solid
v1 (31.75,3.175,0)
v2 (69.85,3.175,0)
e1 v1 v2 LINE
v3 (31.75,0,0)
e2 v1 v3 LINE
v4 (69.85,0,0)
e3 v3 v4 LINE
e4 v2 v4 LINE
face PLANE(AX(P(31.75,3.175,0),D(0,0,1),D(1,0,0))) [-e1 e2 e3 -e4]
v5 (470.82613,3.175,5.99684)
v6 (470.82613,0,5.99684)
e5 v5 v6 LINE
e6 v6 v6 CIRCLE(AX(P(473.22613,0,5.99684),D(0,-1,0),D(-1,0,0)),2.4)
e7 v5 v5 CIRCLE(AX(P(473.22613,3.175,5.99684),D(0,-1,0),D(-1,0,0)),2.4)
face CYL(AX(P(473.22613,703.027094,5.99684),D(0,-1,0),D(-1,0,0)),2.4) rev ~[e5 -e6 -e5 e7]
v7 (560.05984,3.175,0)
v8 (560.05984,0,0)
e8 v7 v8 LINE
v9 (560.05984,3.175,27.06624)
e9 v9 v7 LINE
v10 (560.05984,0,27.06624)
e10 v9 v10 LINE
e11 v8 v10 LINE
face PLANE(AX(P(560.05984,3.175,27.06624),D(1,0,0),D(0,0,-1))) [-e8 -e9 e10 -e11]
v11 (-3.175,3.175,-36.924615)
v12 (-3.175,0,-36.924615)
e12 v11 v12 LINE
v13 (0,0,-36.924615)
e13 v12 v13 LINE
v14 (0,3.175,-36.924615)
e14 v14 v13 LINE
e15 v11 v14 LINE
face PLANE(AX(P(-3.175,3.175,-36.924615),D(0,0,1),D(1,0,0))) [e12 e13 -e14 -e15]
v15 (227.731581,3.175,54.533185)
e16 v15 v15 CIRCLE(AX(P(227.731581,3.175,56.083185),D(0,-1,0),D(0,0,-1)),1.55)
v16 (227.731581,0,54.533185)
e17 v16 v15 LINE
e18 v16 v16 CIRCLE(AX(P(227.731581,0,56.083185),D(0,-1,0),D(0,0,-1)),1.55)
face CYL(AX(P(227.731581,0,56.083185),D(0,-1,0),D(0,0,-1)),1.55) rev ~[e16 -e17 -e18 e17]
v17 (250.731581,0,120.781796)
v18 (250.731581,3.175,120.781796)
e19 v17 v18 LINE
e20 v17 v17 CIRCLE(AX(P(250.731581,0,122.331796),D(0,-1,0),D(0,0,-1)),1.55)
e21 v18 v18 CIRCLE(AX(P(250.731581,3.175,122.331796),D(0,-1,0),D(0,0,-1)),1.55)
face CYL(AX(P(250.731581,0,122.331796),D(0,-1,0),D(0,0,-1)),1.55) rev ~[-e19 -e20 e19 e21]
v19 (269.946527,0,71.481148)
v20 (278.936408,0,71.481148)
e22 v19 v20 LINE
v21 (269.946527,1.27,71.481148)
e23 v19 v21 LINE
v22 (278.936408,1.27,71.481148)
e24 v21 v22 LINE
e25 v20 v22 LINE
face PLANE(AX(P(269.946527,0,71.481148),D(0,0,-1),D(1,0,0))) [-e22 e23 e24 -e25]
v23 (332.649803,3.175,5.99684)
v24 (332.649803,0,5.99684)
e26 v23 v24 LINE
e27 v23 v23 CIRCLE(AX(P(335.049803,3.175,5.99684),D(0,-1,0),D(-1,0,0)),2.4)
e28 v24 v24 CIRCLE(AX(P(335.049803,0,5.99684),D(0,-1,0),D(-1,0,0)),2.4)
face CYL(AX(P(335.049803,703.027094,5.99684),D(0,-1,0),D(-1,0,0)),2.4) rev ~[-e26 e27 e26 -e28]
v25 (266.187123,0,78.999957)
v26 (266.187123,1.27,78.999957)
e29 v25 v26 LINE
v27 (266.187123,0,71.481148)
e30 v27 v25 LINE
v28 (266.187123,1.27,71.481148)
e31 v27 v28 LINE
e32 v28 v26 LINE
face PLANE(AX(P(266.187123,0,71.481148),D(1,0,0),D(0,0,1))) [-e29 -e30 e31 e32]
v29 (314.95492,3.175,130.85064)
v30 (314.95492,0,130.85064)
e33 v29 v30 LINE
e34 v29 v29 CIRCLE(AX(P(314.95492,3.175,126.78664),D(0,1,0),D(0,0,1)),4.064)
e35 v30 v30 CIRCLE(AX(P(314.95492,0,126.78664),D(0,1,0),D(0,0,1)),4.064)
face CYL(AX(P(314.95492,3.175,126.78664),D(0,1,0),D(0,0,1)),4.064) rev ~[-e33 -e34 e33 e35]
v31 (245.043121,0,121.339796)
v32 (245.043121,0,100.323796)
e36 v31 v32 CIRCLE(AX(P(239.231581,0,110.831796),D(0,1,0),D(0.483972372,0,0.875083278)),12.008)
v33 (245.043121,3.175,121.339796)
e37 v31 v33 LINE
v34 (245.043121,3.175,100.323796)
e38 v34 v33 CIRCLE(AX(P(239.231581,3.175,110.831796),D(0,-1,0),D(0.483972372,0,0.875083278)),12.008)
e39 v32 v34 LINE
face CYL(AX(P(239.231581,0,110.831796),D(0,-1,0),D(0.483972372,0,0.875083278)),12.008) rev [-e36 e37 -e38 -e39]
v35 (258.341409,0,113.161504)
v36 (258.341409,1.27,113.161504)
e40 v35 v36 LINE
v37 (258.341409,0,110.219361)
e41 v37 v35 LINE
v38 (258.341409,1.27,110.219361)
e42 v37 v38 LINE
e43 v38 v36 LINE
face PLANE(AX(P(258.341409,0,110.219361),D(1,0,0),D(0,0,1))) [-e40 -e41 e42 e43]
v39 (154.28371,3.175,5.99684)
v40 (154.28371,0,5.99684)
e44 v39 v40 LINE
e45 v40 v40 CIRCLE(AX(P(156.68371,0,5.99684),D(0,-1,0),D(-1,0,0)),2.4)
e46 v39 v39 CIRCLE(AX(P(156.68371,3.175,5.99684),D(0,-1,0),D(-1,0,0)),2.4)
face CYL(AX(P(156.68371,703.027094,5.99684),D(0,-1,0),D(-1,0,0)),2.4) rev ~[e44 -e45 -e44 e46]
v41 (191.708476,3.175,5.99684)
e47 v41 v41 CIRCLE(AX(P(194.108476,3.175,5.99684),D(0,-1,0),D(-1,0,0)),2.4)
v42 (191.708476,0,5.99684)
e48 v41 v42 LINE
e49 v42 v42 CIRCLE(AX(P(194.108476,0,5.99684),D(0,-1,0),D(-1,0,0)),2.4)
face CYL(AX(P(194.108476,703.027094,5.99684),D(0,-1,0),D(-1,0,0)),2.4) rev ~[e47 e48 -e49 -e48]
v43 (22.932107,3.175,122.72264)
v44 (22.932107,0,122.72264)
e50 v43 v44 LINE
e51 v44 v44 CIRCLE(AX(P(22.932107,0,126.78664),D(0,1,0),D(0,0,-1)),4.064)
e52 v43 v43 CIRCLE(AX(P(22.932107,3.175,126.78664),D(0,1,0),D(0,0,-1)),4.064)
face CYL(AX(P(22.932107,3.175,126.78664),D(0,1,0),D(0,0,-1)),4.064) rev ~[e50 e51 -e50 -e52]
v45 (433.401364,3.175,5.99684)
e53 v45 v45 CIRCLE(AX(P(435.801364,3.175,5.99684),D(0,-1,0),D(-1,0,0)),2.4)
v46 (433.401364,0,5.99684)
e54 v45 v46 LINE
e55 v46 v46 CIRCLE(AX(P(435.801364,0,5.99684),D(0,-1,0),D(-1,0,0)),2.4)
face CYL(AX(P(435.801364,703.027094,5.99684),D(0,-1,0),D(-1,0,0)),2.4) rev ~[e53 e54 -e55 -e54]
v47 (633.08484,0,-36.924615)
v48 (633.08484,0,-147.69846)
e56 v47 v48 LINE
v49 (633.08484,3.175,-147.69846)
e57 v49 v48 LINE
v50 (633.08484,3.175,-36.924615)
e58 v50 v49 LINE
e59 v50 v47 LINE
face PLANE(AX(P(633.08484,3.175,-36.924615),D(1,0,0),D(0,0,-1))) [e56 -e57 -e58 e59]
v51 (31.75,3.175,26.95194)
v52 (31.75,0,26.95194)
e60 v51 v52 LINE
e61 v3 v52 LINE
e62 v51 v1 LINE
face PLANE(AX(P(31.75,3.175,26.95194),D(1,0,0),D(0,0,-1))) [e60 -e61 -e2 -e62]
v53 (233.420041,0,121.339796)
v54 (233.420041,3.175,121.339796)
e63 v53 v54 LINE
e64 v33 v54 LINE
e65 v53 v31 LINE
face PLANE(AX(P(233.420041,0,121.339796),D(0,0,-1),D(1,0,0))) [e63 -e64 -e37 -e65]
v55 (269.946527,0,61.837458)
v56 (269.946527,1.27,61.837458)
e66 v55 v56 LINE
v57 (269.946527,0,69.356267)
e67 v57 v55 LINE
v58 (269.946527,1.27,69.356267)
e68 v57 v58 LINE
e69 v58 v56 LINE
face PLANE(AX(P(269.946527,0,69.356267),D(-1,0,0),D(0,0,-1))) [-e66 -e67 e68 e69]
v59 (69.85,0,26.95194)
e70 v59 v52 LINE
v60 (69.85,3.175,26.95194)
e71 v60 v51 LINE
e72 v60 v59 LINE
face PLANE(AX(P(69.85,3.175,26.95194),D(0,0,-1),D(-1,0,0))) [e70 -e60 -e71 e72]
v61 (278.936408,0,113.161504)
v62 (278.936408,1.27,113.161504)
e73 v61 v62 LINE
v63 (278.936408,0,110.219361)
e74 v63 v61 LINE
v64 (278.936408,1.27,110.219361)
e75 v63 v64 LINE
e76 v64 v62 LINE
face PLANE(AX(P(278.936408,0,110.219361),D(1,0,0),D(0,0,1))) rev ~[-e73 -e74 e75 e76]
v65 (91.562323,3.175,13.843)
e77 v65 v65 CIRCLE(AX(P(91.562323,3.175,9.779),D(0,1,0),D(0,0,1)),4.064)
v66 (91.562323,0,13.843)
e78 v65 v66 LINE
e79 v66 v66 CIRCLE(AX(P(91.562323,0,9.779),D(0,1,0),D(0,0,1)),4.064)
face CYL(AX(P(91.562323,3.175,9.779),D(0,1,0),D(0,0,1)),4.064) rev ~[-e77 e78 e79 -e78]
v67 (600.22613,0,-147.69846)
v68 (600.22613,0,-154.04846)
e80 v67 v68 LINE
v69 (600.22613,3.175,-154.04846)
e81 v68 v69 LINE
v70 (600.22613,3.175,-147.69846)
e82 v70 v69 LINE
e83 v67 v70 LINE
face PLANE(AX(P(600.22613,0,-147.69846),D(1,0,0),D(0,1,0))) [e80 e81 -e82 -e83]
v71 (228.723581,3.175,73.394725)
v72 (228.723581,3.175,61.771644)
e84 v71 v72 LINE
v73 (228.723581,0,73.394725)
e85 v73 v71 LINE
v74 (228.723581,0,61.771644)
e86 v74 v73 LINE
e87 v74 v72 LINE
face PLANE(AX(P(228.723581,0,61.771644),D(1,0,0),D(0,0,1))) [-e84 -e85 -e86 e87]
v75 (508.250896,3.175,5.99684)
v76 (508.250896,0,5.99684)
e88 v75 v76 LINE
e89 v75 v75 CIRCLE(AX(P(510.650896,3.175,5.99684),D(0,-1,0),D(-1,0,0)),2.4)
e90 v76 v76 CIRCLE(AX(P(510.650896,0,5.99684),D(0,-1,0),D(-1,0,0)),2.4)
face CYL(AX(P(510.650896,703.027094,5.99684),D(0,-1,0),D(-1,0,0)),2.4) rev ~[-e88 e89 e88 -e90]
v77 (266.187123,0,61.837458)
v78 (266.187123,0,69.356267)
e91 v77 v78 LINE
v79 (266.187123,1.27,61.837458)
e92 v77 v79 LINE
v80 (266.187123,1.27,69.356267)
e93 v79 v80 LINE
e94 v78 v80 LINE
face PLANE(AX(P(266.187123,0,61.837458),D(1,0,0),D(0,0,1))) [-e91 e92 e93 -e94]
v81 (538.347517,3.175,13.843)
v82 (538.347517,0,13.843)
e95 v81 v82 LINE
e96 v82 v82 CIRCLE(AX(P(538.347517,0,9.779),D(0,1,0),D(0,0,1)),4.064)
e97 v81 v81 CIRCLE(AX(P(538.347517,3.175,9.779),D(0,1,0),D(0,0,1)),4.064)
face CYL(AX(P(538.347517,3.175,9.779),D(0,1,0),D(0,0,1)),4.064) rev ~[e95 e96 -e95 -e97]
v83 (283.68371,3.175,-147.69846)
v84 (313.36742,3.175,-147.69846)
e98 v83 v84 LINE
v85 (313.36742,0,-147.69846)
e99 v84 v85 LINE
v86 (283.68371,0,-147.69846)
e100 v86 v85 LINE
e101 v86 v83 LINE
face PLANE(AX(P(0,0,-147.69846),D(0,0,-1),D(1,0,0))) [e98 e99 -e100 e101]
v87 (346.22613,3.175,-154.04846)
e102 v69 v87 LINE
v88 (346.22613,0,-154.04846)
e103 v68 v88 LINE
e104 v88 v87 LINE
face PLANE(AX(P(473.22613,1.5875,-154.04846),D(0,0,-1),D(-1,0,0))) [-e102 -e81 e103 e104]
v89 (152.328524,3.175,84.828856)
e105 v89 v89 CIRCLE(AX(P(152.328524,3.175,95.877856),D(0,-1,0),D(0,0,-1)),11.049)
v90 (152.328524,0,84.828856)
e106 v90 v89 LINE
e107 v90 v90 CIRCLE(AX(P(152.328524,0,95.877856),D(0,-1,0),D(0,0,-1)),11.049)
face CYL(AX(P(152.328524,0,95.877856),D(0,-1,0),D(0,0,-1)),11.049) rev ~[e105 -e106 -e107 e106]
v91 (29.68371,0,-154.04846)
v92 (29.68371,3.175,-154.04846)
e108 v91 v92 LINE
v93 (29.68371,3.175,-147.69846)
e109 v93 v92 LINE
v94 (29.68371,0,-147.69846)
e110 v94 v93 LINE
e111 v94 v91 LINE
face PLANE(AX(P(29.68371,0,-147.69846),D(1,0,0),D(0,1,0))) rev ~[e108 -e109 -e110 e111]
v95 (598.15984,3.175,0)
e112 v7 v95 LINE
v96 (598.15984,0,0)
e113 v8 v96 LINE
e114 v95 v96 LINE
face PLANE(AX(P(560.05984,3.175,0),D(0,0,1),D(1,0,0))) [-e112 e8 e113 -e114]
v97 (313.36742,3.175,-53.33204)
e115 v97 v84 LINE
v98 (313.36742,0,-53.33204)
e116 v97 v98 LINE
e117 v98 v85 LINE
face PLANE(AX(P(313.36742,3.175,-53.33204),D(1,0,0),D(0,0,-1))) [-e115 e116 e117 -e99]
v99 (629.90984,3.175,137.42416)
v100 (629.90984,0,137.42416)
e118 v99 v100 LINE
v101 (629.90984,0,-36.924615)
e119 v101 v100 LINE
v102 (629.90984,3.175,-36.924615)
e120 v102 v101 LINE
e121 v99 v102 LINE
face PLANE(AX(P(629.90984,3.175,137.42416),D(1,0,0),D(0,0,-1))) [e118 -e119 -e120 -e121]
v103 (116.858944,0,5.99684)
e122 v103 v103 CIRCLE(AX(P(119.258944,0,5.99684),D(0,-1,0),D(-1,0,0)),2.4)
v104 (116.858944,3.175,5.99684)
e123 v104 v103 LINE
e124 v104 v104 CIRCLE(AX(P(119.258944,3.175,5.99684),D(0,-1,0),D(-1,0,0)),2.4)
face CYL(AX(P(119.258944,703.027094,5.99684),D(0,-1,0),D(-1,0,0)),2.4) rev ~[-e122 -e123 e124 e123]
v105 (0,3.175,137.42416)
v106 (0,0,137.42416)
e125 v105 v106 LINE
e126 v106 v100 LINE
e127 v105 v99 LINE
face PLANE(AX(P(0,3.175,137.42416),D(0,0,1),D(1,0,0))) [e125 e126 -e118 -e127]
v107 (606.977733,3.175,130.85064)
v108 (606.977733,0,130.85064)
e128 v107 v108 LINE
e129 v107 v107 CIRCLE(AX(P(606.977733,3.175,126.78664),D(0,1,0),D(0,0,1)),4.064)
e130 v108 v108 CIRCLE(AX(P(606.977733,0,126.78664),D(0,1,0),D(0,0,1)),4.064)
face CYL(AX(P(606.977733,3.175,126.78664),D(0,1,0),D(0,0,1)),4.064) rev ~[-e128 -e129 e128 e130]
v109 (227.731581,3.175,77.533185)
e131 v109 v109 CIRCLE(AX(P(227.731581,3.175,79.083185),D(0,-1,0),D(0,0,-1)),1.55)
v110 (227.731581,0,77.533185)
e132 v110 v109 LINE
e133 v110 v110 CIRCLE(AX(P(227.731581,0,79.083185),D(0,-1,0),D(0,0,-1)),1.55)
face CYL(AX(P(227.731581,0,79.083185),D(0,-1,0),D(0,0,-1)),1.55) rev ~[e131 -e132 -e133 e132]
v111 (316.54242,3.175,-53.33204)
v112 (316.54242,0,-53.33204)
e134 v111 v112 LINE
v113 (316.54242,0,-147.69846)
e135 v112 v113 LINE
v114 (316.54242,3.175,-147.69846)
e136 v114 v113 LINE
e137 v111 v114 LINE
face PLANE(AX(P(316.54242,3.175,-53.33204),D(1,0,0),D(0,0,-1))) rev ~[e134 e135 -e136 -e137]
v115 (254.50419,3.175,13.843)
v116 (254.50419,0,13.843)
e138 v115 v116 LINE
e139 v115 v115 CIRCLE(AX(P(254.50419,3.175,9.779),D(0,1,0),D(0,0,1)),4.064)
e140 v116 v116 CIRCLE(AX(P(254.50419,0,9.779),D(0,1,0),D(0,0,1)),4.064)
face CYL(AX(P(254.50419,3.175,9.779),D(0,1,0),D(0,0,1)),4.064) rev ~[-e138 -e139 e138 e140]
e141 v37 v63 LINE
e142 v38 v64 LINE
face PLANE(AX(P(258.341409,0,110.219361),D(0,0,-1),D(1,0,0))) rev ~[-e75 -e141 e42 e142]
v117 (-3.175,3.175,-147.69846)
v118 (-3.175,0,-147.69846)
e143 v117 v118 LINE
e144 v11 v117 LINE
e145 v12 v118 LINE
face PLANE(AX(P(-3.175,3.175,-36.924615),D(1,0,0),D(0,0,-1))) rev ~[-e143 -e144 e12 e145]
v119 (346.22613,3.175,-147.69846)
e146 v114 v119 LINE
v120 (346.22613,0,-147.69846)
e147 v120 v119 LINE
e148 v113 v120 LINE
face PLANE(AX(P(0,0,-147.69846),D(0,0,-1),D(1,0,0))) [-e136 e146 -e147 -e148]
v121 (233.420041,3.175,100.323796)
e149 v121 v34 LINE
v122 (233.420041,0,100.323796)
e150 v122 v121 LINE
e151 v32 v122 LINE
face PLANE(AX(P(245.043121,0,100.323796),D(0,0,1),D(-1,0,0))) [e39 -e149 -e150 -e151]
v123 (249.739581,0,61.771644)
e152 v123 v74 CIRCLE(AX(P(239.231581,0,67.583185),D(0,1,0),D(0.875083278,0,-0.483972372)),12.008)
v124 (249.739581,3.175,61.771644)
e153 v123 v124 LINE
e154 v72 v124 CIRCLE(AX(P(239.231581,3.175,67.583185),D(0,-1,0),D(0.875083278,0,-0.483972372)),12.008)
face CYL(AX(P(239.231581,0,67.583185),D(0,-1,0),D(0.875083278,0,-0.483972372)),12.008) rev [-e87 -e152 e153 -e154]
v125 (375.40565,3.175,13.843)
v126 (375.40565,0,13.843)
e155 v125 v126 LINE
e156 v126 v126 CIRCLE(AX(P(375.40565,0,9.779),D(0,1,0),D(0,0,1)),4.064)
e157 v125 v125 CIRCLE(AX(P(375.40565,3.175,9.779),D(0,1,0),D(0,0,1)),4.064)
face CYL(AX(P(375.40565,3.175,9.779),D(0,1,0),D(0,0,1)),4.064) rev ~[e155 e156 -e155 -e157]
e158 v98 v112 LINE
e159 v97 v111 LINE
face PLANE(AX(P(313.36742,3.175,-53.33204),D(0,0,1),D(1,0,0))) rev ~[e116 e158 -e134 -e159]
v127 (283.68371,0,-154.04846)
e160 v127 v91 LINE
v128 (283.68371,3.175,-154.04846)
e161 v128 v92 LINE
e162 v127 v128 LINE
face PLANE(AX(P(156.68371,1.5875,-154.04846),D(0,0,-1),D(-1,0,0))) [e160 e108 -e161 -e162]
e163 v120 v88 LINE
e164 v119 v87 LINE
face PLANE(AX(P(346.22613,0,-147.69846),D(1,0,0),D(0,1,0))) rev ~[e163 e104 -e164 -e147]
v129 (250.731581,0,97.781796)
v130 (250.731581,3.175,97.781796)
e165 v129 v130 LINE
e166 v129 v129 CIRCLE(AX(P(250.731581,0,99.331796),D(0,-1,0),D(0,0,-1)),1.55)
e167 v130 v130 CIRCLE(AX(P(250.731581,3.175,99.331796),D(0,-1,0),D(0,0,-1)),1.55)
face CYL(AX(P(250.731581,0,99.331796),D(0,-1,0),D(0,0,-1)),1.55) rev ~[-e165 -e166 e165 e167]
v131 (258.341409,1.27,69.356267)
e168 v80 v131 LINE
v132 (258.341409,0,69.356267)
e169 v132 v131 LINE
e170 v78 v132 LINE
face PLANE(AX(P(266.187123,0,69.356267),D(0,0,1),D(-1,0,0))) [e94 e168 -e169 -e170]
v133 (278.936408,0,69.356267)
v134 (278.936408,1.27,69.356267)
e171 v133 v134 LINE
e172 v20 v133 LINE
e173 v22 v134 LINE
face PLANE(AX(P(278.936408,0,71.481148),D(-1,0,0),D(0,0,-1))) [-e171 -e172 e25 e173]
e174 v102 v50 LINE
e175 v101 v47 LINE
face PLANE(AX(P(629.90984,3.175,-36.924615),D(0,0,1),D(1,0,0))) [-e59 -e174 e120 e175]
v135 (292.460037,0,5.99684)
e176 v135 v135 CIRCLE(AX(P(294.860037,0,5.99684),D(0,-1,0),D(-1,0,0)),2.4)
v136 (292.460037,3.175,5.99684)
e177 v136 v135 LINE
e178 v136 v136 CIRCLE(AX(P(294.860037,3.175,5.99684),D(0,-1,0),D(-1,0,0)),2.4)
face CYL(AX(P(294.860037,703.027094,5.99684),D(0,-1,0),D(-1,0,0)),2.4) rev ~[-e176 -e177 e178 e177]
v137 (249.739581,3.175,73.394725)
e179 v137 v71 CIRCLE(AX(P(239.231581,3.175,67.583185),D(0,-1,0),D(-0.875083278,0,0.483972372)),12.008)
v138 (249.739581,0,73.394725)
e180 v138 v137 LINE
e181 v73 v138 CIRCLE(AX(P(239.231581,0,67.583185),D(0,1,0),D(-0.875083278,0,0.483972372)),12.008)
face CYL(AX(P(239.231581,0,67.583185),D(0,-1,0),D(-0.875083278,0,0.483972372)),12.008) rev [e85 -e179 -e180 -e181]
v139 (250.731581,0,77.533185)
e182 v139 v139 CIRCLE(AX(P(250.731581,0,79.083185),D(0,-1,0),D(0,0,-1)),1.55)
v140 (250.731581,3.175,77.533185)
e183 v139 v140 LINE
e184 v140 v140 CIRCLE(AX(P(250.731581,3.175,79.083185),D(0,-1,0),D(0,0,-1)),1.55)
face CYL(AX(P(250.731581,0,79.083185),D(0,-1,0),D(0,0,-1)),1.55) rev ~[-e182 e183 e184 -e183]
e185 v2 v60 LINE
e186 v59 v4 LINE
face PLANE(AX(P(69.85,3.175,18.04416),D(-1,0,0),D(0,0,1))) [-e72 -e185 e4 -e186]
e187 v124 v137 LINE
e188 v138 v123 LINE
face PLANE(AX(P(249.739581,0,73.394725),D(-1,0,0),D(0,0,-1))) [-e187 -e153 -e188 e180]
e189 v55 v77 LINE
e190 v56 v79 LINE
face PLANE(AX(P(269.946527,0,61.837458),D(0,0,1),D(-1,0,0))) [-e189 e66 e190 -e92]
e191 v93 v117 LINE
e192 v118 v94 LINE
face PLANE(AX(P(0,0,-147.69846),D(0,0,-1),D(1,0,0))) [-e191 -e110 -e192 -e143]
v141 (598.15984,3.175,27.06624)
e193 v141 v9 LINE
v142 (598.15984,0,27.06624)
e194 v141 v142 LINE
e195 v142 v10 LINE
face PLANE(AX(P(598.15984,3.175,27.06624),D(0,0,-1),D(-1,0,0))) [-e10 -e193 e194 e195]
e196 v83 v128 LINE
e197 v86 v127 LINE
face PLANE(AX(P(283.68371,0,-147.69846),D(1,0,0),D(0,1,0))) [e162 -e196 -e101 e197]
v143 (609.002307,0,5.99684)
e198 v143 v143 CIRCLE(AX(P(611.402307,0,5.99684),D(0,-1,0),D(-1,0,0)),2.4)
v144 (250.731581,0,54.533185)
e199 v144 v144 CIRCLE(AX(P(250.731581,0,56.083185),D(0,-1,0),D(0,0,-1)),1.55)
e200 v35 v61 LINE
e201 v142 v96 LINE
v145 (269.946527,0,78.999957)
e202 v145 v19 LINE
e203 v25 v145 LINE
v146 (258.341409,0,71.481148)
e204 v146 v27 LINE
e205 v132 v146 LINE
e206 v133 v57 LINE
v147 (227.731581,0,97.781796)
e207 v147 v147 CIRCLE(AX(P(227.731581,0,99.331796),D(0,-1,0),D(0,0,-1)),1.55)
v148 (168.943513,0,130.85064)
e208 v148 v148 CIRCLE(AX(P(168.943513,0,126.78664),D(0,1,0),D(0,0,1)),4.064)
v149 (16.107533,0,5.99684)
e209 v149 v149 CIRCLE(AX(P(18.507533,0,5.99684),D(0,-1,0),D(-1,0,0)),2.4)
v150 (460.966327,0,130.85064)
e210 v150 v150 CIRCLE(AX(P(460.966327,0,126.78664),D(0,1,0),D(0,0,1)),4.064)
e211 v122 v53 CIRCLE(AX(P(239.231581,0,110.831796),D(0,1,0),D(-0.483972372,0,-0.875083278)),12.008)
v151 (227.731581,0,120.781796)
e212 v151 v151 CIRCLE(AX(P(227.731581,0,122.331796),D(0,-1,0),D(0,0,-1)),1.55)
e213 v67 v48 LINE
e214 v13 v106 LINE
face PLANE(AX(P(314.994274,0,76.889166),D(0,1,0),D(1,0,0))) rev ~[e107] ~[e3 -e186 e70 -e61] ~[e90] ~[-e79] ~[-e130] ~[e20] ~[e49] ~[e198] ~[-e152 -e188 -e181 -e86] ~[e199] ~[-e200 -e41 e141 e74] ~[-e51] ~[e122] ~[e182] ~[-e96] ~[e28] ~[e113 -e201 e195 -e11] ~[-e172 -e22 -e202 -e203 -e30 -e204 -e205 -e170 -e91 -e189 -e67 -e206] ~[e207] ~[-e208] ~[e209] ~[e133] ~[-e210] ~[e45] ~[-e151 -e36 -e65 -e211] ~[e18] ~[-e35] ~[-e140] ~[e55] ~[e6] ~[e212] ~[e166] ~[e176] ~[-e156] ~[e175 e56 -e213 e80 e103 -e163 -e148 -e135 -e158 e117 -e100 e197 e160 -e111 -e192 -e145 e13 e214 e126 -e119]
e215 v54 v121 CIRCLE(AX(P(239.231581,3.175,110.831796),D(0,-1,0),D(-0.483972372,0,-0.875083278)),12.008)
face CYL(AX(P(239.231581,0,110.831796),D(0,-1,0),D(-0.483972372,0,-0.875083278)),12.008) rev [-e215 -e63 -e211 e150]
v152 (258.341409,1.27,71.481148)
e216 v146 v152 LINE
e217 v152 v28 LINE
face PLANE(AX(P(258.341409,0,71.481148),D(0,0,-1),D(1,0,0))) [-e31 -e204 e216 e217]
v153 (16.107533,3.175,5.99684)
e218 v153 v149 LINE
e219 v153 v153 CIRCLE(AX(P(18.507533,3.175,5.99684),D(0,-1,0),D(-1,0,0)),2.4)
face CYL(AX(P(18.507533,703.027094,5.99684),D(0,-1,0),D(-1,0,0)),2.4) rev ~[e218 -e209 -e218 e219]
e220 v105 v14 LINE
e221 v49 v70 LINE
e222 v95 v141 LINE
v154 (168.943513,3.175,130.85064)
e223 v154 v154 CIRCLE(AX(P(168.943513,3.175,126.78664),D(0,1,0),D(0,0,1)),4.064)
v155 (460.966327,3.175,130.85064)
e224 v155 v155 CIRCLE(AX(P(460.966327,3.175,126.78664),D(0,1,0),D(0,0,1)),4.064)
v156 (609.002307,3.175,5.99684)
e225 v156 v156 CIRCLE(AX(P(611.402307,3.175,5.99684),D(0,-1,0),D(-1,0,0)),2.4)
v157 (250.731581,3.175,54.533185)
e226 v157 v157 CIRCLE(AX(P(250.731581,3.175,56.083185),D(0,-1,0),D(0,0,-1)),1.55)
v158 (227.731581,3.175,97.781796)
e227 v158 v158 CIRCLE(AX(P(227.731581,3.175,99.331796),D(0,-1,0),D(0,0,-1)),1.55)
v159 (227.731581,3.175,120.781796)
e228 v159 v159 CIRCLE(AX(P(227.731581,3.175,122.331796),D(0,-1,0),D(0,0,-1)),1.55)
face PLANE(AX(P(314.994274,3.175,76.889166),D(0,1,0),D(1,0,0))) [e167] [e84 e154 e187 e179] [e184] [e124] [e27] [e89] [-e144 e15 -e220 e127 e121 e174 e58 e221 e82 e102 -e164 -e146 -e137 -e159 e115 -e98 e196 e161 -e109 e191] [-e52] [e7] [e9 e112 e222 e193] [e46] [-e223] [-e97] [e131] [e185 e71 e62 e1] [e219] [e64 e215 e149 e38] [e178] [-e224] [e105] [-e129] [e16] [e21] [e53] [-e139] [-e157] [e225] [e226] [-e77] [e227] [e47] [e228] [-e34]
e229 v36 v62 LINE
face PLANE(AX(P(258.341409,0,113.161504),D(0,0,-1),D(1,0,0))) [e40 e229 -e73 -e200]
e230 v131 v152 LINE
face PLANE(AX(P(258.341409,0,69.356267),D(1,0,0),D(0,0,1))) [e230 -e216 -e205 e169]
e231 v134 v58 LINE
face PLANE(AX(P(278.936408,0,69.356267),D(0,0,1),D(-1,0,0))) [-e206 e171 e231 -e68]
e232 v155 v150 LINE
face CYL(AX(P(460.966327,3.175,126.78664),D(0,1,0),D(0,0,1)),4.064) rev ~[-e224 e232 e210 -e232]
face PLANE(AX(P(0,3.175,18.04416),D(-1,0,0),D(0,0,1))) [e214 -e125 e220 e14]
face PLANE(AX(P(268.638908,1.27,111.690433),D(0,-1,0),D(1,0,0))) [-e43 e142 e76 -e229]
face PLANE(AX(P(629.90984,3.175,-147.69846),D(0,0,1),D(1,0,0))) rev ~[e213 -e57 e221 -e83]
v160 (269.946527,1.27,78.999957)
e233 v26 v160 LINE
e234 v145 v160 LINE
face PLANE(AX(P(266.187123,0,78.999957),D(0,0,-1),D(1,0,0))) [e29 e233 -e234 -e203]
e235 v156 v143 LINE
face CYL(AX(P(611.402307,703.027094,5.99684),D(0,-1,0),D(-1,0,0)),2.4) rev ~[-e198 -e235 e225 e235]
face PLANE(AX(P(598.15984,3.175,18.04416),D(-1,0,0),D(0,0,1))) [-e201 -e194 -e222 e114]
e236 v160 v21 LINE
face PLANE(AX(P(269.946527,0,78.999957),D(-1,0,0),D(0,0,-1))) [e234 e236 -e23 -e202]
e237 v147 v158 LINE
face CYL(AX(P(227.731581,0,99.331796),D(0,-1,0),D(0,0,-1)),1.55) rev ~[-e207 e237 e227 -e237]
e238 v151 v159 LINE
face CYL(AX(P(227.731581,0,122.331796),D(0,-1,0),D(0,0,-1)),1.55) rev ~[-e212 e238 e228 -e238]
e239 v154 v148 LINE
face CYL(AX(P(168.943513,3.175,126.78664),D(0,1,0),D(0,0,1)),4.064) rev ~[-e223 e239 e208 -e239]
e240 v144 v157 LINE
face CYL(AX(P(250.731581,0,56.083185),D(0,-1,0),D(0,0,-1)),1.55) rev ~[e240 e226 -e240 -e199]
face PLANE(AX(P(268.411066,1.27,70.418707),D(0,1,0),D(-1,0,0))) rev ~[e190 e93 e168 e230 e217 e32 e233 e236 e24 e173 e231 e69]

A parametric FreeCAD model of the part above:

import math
import FreeCAD as App
import Part
import Sketcher
from FreeCAD import Vector
Q = App.Units.Quantity


def add_polygon(sketch, points):
    """Adds a closed chain of lines whose ends are joined by coincident constraints."""
    first, n = sketch.GeometryCount, len(points)
    for a, b in zip(points, points[1:] + points[:1]):
        sketch.addGeometry(Part.LineSegment(App.Vector(*a, 0), App.Vector(*b, 0)), False)
    for i in range(n):
        sketch.addConstraint(Sketcher.Constraint("Coincident", first + i, 2, first + (i + 1) % n, 1))

doc = App.newDocument("Part")
body = doc.addObject("PartDesign::Body", "Body")

sketch1 = doc.addObject("Sketcher::SketchObject", "Sketch")
body.addObject(sketch1)
sketch1.AttachmentSupport = (doc.XZ_Plane, [""])
sketch1.MapMode = "FlatFace"
add_polygon(sketch1, [(0, -148), (0, 0), (630, 0), (630, -148)])
sketch1.addConstraint([
    Sketcher.Constraint("Vertical", 0),
    Sketcher.Constraint("Horizontal", 1),
    Sketcher.Constraint("Vertical", 2),
    Sketcher.Constraint("Horizontal", 3),
    Sketcher.Constraint("Coincident", 0, 2, -1, 1),
    Sketcher.Constraint("DistanceX", 1, 1, 1, 2, Q("24.7996 in")),
    Sketcher.Constraint("DistanceY", 0, 1, 0, 2, Q("5.8149 in")),
])
pad1 = doc.addObject("PartDesign::Pad", "Pad")
body.addObject(pad1)
pad1.Profile = sketch1
pad1.Length = Q("0.125 in")
pad1.Reversed = True

sketch2 = doc.addObject("Sketcher::SketchObject", "Sketch001")
body.addObject(sketch2)
sketch2.AttachmentSupport = (doc.XY_Plane, [""])
sketch2.MapMode = "FlatFace"
sketch2.AttachmentOffset = App.Placement(Vector(0, 0, -5.8149 * 25.4), App.Rotation())
add_polygon(sketch2, [(600.2, 3.2), (600.2, 0), (346.2, 0), (346.2, 3.2)])
add_polygon(sketch2, [(283.7, 3.2), (283.7, 0), (29.7, 0), (29.7, 3.2)])
sketch2.addConstraint([
    Sketcher.Constraint("Vertical", 0),
    Sketcher.Constraint("Horizontal", 1),
    Sketcher.Constraint("Vertical", 2),
    Sketcher.Constraint("Horizontal", 3),
    Sketcher.Constraint("Vertical", 4),
    Sketcher.Constraint("Horizontal", 5),
    Sketcher.Constraint("Vertical", 6),
    Sketcher.Constraint("Horizontal", 7),
    Sketcher.Constraint("PointOnObject", 0, 2, -1),
    Sketcher.Constraint("PointOnObject", 4, 2, -1),
    Sketcher.Constraint("Horizontal", 3, 2, 6, 2),
    Sketcher.Constraint("Equal", 3, 5),
    Sketcher.Constraint("DistanceX", 1, 2, 1, 1, Q("10 in")),
    Sketcher.Constraint("DistanceY", 0, 2, 0, 1, Q("0.125 in")),
    Sketcher.Constraint("DistanceX", 4, 2, 1, 2, Q("2.4623 in")),
    Sketcher.Constraint("DistanceX", -1, 1, 0, 2, 600.22613),
])
pad2 = doc.addObject("PartDesign::Pad", "Pad001")
body.addObject(pad2)
pad2.Profile = sketch2
pad2.Length = Q("0.25 in")
pad2.Reversed = True

sketch3 = doc.addObject("Sketcher::SketchObject", "Sketch002")
body.addObject(sketch3)
sketch3.AttachmentSupport = (doc.XZ_Plane, [""])
sketch3.MapMode = "FlatFace"
sketch3.AttachmentOffset = App.Placement(Vector(0, 0, -0.125 * 25.4), App.Rotation())
add_polygon(sketch3, [(313.4, -242.1), (313.4, -53.3), (316.5, -53.3), (316.5, -242.1)])
sketch3.addConstraint([
    Sketcher.Constraint("Vertical", 0),
    Sketcher.Constraint("Horizontal", 1),
    Sketcher.Constraint("Vertical", 2),
    Sketcher.Constraint("Horizontal", 3),
    Sketcher.Constraint("DistanceX", 1, 1, 1, 2, Q("0.125 in")),
    Sketcher.Constraint("DistanceX", -1, 1, 0, 2, Q("12.3373 in")),
    Sketcher.Constraint("DistanceY", 0, 1, 0, 2, 188.73284),
    Sketcher.Constraint("DistanceY", 0, 2, -1, 1, 53.33204),
])
pocket1 = doc.addObject("PartDesign::Pocket", "Pocket")
body.addObject(pocket1)
pocket1.Profile = sketch3
pocket1.Length = Q("0.125 in")
pocket1.Reversed = True

sketch4 = doc.addObject("Sketcher::SketchObject", "Sketch003")
body.addObject(sketch4)
sketch4.AttachmentSupport = (doc.XZ_Plane, [""])
sketch4.MapMode = "FlatFace"
sketch4.AttachmentOffset = App.Placement(Vector(0, 0, -0.125 * 25.4), App.Rotation())
add_polygon(sketch4, [(629.9, -147.7), (629.9, -36.9), (633.1, -36.9), (633.1, -147.7)])
add_polygon(sketch4, [(-3.2, -147.7), (-3.2, -36.9), (0, -36.9), (0, -147.7)])
sketch4.addConstraint([
    Sketcher.Constraint("Vertical", 0),
    Sketcher.Constraint("Horizontal", 1),
    Sketcher.Constraint("Vertical", 2),
    Sketcher.Constraint("Horizontal", 3),
    Sketcher.Constraint("Vertical", 4),
    Sketcher.Constraint("Horizontal", 5),
    Sketcher.Constraint("Vertical", 6),
    Sketcher.Constraint("Horizontal", 7),
    Sketcher.Constraint("PointOnObject", 5, 2, -2),
    Sketcher.Constraint("Horizontal", 1, 2, 4, 2),
    Sketcher.Constraint("Horizontal", 3, 2, 6, 2),
    Sketcher.Constraint("Equal", 3, 5),
    Sketcher.Constraint("DistanceX", 1, 1, 1, 2, Q("0.125 in")),
    Sketcher.Constraint("DistanceX", -1, 1, 0, 2, Q("24.7996 in")),
    Sketcher.Constraint("DistanceY", 2, 2, -1, 1, Q("5.8149 in")),
    Sketcher.Constraint("DistanceY", 0, 1, 0, 2, 110.773845),
])
pad3 = doc.addObject("PartDesign::Pad", "Pad002")
body.addObject(pad3)
pad3.Profile = sketch4
pad3.Length = Q("0.125 in")

sketch5 = doc.addObject("Sketcher::SketchObject", "Sketch004")
body.addObject(sketch5)
sketch5.AttachmentSupport = (doc.XZ_Plane, [""])
sketch5.MapMode = "FlatFace"
sketch5.AttachmentOffset = App.Placement(Vector(0, 0, -0.125 * 25.4), App.Rotation())
add_polygon(sketch5, [(0, 0), (0, 18), (630, 18), (630, 0)])
sketch5.addConstraint([
    Sketcher.Constraint("Vertical", 0),
    Sketcher.Constraint("Horizontal", 1),
    Sketcher.Constraint("Vertical", 2),
    Sketcher.Constraint("Horizontal", 3),
    Sketcher.Constraint("Coincident", 3, 2, -1, 1),
    Sketcher.Constraint("DistanceX", 1, 1, 1, 2, Q("24.7996 in")),
    Sketcher.Constraint("DistanceY", 0, 1, 0, 2, Q("0.7104 in")),
])
pad4 = doc.addObject("PartDesign::Pad", "Pad003")
body.addObject(pad4)
pad4.Profile = sketch5
pad4.Length = Q("0.125 in")

sketch6 = doc.addObject("Sketcher::SketchObject", "Sketch005")
body.addObject(sketch6)
sketch6.AttachmentSupport = (doc.XZ_Plane, [""])
sketch6.MapMode = "FlatFace"
sketch6.AttachmentOffset = App.Placement(Vector(0, 0, -0.125 * 25.4), App.Rotation())
add_polygon(sketch6, [(560, 0), (560, 36), (598, 36), (598, 0)])
add_polygon(sketch6, [(32, 0), (32, 36), (70, 36), (70, 0)])
sketch6.addConstraint([
    Sketcher.Constraint("Vertical", 0),
    Sketcher.Constraint("Horizontal", 1),
    Sketcher.Constraint("Vertical", 2),
    Sketcher.Constraint("Horizontal", 3),
    Sketcher.Constraint("Vertical", 4),
    Sketcher.Constraint("Horizontal", 5),
    Sketcher.Constraint("Vertical", 6),
    Sketcher.Constraint("Horizontal", 7),
    Sketcher.Constraint("PointOnObject", 2, 2, -1),
    Sketcher.Constraint("PointOnObject", 6, 2, -1),
    Sketcher.Constraint("Horizontal", 1, 2, 4, 2),
    Sketcher.Constraint("Equal", 3, 5),
    Sketcher.Constraint("DistanceX", 1, 1, 1, 2, Q("1.5 in")),
    Sketcher.Constraint("DistanceX", -1, 1, 4, 2, Q("1.25 in")),
    Sketcher.Constraint("DistanceY", 0, 1, 0, 2, Q("1.4208 in")),
    Sketcher.Constraint("DistanceX", -1, 1, 0, 2, Q("22.0496 in")),
])
pocket2 = doc.addObject("PartDesign::Pocket", "Pocket001")
body.addObject(pocket2)
pocket2.Profile = sketch6
pocket2.Type = "ThroughAll"
pocket2.Reversed = True

sketch7 = doc.addObject("Sketcher::SketchObject", "Sketch006")
body.addObject(sketch7)
sketch7.AttachmentSupport = (doc.XZ_Plane, [""])
sketch7.MapMode = "FlatFace"
sketch7.AttachmentOffset = App.Placement(Vector(0, 0, -0.125 * 25.4), App.Rotation())
add_polygon(sketch7, [(0, 18), (0, 137), (630, 137), (630, 18), (598, 18), (598, 27), (560, 27), (560, 18), (70, 18), (70, 27), (32, 27), (32, 18)])
sketch7.addConstraint([
    Sketcher.Constraint("Vertical", 0),
    Sketcher.Constraint("Horizontal", 1),
    Sketcher.Constraint("Vertical", 2),
    Sketcher.Constraint("Horizontal", 3),
    Sketcher.Constraint("Vertical", 4),
    Sketcher.Constraint("Horizontal", 5),
    Sketcher.Constraint("Vertical", 6),
    Sketcher.Constraint("Horizontal", 7),
    Sketcher.Constraint("Vertical", 8),
    Sketcher.Constraint("Horizontal", 9),
    Sketcher.Constraint("Vertical", 10),
    Sketcher.Constraint("Horizontal", 11),
    Sketcher.Constraint("PointOnObject", 0, 2, -2),
    Sketcher.Constraint("Horizontal", 3, 2, 6, 2),
    Sketcher.Constraint("Horizontal", 7, 2, 10, 2),
    Sketcher.Constraint("Equal", 5, 9),
    Sketcher.Constraint("Equal", 3, 11),
    Sketcher.Constraint("DistanceX", 5, 2, 5, 1, Q("1.5 in")),
    Sketcher.Constraint("DistanceY", 0, 1, 0, 2, Q("4.7 in")),
    Sketcher.Constraint("DistanceX", 3, 2, 3, 1, Q("1.25 in")),
    Sketcher.Constraint("DistanceX", 1, 1, 1, 2, Q("24.7996 in")),
    Sketcher.Constraint("DistanceY", 4, 1, 4, 2, Q("0.3552 in")),
    Sketcher.Constraint("DistanceY", 8, 1, 8, 2, Q("0.3507 in")),
    Sketcher.Constraint("DistanceY", -1, 1, 0, 2, Q("5.4104 in")),
])
pad5 = doc.addObject("PartDesign::Pad", "Pad004")
body.addObject(pad5)
pad5.Profile = sketch7
pad5.Length = Q("0.125 in")

sketch8 = doc.addObject("Sketcher::SketchObject", "Sketch007")
body.addObject(sketch8)
sketch8.AttachmentSupport = (doc.XZ_Plane, [""])
sketch8.MapMode = "FlatFace"
sketch8.addGeometry([
    Part.Circle(Vector(227.7, 122.3, 0), Vector(0, 0, 1), 1.6),
    Part.Circle(Vector(250.7, 122.3, 0), Vector(0, 0, 1), 1.6),
    Part.Circle(Vector(227.7, 99.3, 0), Vector(0, 0, 1), 1.6),
    Part.Circle(Vector(250.7, 99.3, 0), Vector(0, 0, 1), 1.6),
    Part.Circle(Vector(152.3, 95.9, 0), Vector(0, 0, 1), 11),
    Part.Circle(Vector(227.7, 79.1, 0), Vector(0, 0, 1), 1.6),
    Part.Circle(Vector(227.7, 56.1, 0), Vector(0, 0, 1), 1.6),
    Part.Circle(Vector(250.7, 56.1, 0), Vector(0, 0, 1), 1.6),
    Part.Circle(Vector(250.7, 79.1, 0), Vector(0, 0, 1), 1.6),
    Part.LineSegment(Vector(233.4, 100.3, 0), Vector(245, 100.3, 0)),
    Part.ArcOfCircle(Part.Circle(Vector(239.2, 110.8, 0), Vector(0, 0, 1), 12), math.radians(-61), math.radians(61)),
    Part.LineSegment(Vector(245, 121.3, 0), Vector(233.4, 121.3, 0)),
    Part.ArcOfCircle(Part.Circle(Vector(239.2, 110.8, 0), Vector(0, 0, 1), 12), math.radians(119), math.radians(241)),
    Part.LineSegment(Vector(249.7, 61.8, 0), Vector(249.7, 73.4, 0)),
    Part.ArcOfCircle(Part.Circle(Vector(239.2, 67.6, 0), Vector(0, 0, 1), 12), math.radians(29), math.radians(151)),
    Part.LineSegment(Vector(228.7, 73.4, 0), Vector(228.7, 61.8, 0)),
    Part.ArcOfCircle(Part.Circle(Vector(239.2, 67.6, 0), Vector(0, 0, 1), 12), math.radians(-151), math.radians(-29)),
], False)
sketch8.addConstraint([
    Sketcher.Constraint("Coincident", 9, 2, 10, 1),
    Sketcher.Constraint("Coincident", 10, 2, 11, 1),
    Sketcher.Constraint("Coincident", 11, 2, 12, 1),
    Sketcher.Constraint("Coincident", 12, 2, 9, 1),
    Sketcher.Constraint("Coincident", 13, 2, 14, 1),
    Sketcher.Constraint("Coincident", 14, 2, 15, 1),
    Sketcher.Constraint("Coincident", 15, 2, 16, 1),
    Sketcher.Constraint("Coincident", 16, 2, 13, 1),
    Sketcher.Constraint("Horizontal", 9),
    Sketcher.Constraint("Horizontal", 11),
    Sketcher.Constraint("Vertical", 13),
    Sketcher.Constraint("Vertical", 15),
    Sketcher.Constraint("Coincident", 12, 3, 10, 3),
    Sketcher.Constraint("Coincident", 16, 3, 14, 3),
    Sketcher.Constraint("Equal", 0, 1),
    Sketcher.Constraint("Equal", 1, 2),
    Sketcher.Constraint("Equal", 2, 3),
    Sketcher.Constraint("Equal", 3, 5),
    Sketcher.Constraint("Equal", 5, 6),
    Sketcher.Constraint("Equal", 6, 7),
    Sketcher.Constraint("Equal", 7, 8),
    Sketcher.Constraint("Equal", 10, 12),
    Sketcher.Constraint("Equal", 12, 14),
    Sketcher.Constraint("Equal", 14, 16),
    Sketcher.Constraint("Horizontal", 0, 3, 1, 3),
    Sketcher.Constraint("Horizontal", 2, 3, 3, 3),
    Sketcher.Constraint("Horizontal", 6, 3, 7, 3),
    Sketcher.Constraint("Horizontal", 5, 3, 8, 3),
    Sketcher.Constraint("Horizontal", 13, 2, 14, 2),
    Sketcher.Constraint("Vertical", 0, 3, 2, 3),
    Sketcher.Constraint("Vertical", 1, 3, 3, 3),
    Sketcher.Constraint("Vertical", 2, 3, 5, 3),
    Sketcher.Constraint("Vertical", 5, 3, 6, 3),
    Sketcher.Constraint("Vertical", 3, 3, 7, 3),
    Sketcher.Constraint("Vertical", 7, 3, 8, 3),
    Sketcher.Constraint("Vertical", 12, 3, 14, 3),
    Sketcher.Constraint("Vertical", 9, 2, 10, 2),
    Sketcher.Constraint("Equal", 11, 13),
    Sketcher.Constraint("Diameter", 4, Q("0.87 in")),
    Sketcher.Constraint("Diameter", 0, 3.1),
    Sketcher.Constraint("Radius", 10, 12.008),
    Sketcher.Constraint("DistanceX", 9, 1, 9, 2, 11.62308),
    Sketcher.Constraint("DistanceX", 0, 3, 1, 3, 23.0),
    Sketcher.Constraint("DistanceY", 2, 3, 0, 3, 23.0),
    Sketcher.Constraint("DistanceY", 6, 3, 5, 3, 23.0),
    Sketcher.Constraint("DistanceX", 0, 3, 10, 3, 11.5),
    Sketcher.Constraint("DistanceY", 10, 3, 0, 3, 11.5),
    Sketcher.Constraint("DistanceY", 6, 3, 14, 3, 11.5),
    Sketcher.Constraint("DistanceX", -1, 1, 0, 3, 227.731581),
    Sketcher.Constraint("DistanceY", 4, 3, 2, 3, 3.45394),
    Sketcher.Constraint("DistanceY", 5, 3, 2, 3, 20.248611),
    Sketcher.Constraint("DistanceY", -1, 1, 0, 3, 122.331796),
    Sketcher.Constraint("DistanceX", -1, 1, 4, 3, 152.328524),
])
pocket3 = doc.addObject("PartDesign::Pocket", "Pocket002")
body.addObject(pocket3)
pocket3.Profile = sketch8
pocket3.Type = "ThroughAll"

sketch9 = doc.addObject("Sketcher::SketchObject", "Sketch008")
body.addObject(sketch9)
sketch9.AttachmentSupport = (doc.XZ_Plane, [""])
sketch9.MapMode = "FlatFace"
add_polygon(sketch9, [(278.9, 71.5), (269.9, 71.5), (269.9, 79), (266.2, 79), (266.2, 71.5), (258.3, 71.5), (258.3, 69.4), (266.2, 69.4), (266.2, 61.8), (269.9, 61.8), (269.9, 69.4), (278.9, 69.4)])
add_polygon(sketch9, [(258.3, 113.2), (258.3, 110.2), (278.9, 110.2), (278.9, 113.2)])
sketch9.addConstraint([
    Sketcher.Constraint("Horizontal", 0),
    Sketcher.Constraint("Vertical", 1),
    Sketcher.Constraint("Horizontal", 2),
    Sketcher.Constraint("Vertical", 3),
    Sketcher.Constraint("Horizontal", 4),
    Sketcher.Constraint("Vertical", 5),
    Sketcher.Constraint("Horizontal", 6),
    Sketcher.Constraint("Vertical", 7),
    Sketcher.Constraint("Horizontal", 8),
    Sketcher.Constraint("Vertical", 9),
    Sketcher.Constraint("Horizontal", 10),
    Sketcher.Constraint("Vertical", 11),
    Sketcher.Constraint("Vertical", 12),
    Sketcher.Constraint("Horizontal", 13),
    Sketcher.Constraint("Vertical", 14),
    Sketcher.Constraint("Horizontal", 15),
    Sketcher.Constraint("Horizontal", 0, 2, 3, 2),
    Sketcher.Constraint("Horizontal", 6, 2, 9, 2),
    Sketcher.Constraint("Vertical", 3, 2, 6, 2),
    Sketcher.Constraint("Vertical", 1, 2, 8, 2),
    Sketcher.Constraint("Vertical", 5, 2, 12, 2),
    Sketcher.Constraint("Vertical", 11, 2, 13, 2),
    Sketcher.Constraint("Equal", 3, 7),
    Sketcher.Constraint("DistanceX", 13, 1, 13, 2, 20.595),
    Sketcher.Constraint("DistanceX", 0, 2, 0, 1, 8.989881),
    Sketcher.Constraint("DistanceY", 1, 1, 1, 2, 7.518809),
    Sketcher.Constraint("DistanceY", 5, 2, 5, 1, 2.124881),
    Sketcher.Constraint("DistanceX", 2, 2, 2, 1, 3.759405),
    Sketcher.Constraint("DistanceY", 12, 2, 12, 1, 2.942143),
    Sketcher.Constraint("DistanceX", -1, 1, 4, 2, 258.341409),
    Sketcher.Constraint("DistanceY", -1, 1, 12, 2, 110.219361),
    Sketcher.Constraint("DistanceY", -1, 1, 0, 2, 71.481148),
])
pocket4 = doc.addObject("PartDesign::Pocket", "Pocket003")
body.addObject(pocket4)
pocket4.Profile = sketch9
pocket4.Length = Q("0.05 in")

sketch10 = doc.addObject("Sketcher::SketchObject", "Sketch009")
body.addObject(sketch10)
sketch10.AttachmentSupport = (doc.XZ_Plane, [""])
sketch10.MapMode = "FlatFace"
sketch10.AttachmentOffset = App.Placement(Vector(0, 0, -0.125 * 25.4), App.Rotation())
sketch10.addGeometry([
    Part.Circle(Vector(168.9, 126.8, 0), Vector(0, 0, 1), 4.1),
    Part.Circle(Vector(315, 126.8, 0), Vector(0, 0, 1), 4.1),
    Part.Circle(Vector(461, 126.8, 0), Vector(0, 0, 1), 4.1),
    Part.Circle(Vector(607, 126.8, 0), Vector(0, 0, 1), 4.1),
    Part.Circle(Vector(22.9, 126.8, 0), Vector(0, 0, 1), 4.1),
], False)
sketch10.addConstraint([
    Sketcher.Constraint("Equal", 0, 1),
    Sketcher.Constraint("Equal", 1, 2),
    Sketcher.Constraint("Equal", 2, 3),
    Sketcher.Constraint("Equal", 3, 4),
    Sketcher.Constraint("Horizontal", 0, 3, 1, 3),
    Sketcher.Constraint("Horizontal", 1, 3, 2, 3),
    Sketcher.Constraint("Horizontal", 2, 3, 3, 3),
    Sketcher.Constraint("Horizontal", 3, 3, 4, 3),
    Sketcher.Constraint("Diameter", 0, Q("0.32 in")),
    Sketcher.Constraint("DistanceY", -1, 1, 0, 3, Q("4.9916 in")),
    Sketcher.Constraint("DistanceX", -1, 1, 1, 3, Q("12.3998 in")),
    Sketcher.Constraint("DistanceX", 0, 3, 3, 3, 438.03422),
    Sketcher.Constraint("DistanceX", 4, 3, 2, 3, 438.03422),
    Sketcher.Constraint("DistanceX", -1, 1, 0, 3, 168.943513),
    Sketcher.Constraint("DistanceX", -1, 1, 2, 3, 460.966327),
])
pocket5 = doc.addObject("PartDesign::Pocket", "Pocket004")
body.addObject(pocket5)
pocket5.Profile = sketch10
pocket5.Type = "ThroughAll"
pocket5.Reversed = True

sketch11 = doc.addObject("Sketcher::SketchObject", "Sketch010")
body.addObject(sketch11)
sketch11.AttachmentSupport = (doc.XZ_Plane, [""])
sketch11.MapMode = "FlatFace"
sketch11.AttachmentOffset = App.Placement(Vector(0, 0, -0.125 * 25.4), App.Rotation())
sketch11.addGeometry([
    Part.Circle(Vector(538.3, 9.8, 0), Vector(0, 0, 1), 4.1),
    Part.Circle(Vector(375.4, 9.8, 0), Vector(0, 0, 1), 4.1),
    Part.Circle(Vector(254.5, 9.8, 0), Vector(0, 0, 1), 4.1),
    Part.Circle(Vector(91.6, 9.8, 0), Vector(0, 0, 1), 4.1),
], False)
sketch11.addConstraint([
    Sketcher.Constraint("Equal", 0, 1),
    Sketcher.Constraint("Equal", 1, 2),
    Sketcher.Constraint("Equal", 2, 3),
    Sketcher.Constraint("Horizontal", 0, 3, 1, 3),
    Sketcher.Constraint("Horizontal", 1, 3, 2, 3),
    Sketcher.Constraint("Horizontal", 2, 3, 3, 3),
    Sketcher.Constraint("Diameter", 0, Q("0.32 in")),
    Sketcher.Constraint("DistanceY", -1, 1, 0, 3, Q("0.385 in")),
    Sketcher.Constraint("DistanceX", 2, 3, 1, 3, Q("4.7599 in")),
    Sketcher.Constraint("DistanceX", -1, 1, 1, 3, 375.40565),
    Sketcher.Constraint("DistanceX", -1, 1, 0, 3, 538.347517),
    Sketcher.Constraint("DistanceX", -1, 1, 3, 3, 91.562323),
])
pocket6 = doc.addObject("PartDesign::Pocket", "Pocket005")
body.addObject(pocket6)
pocket6.Profile = sketch11
pocket6.Type = "ThroughAll"
pocket6.Reversed = True

sketch12 = doc.addObject("Sketcher::SketchObject", "Sketch011")
body.addObject(sketch12)
sketch12.AttachmentSupport = (doc.XZ_Plane, [""])
sketch12.MapMode = "FlatFace"
sketch12.AttachmentOffset = App.Placement(Vector(0, 0, -0.125 * 25.4), App.Rotation())
sketch12.addGeometry([
    Part.Circle(Vector(611.4, 6, 0), Vector(0, 0, 1), 2.4),
    Part.Circle(Vector(510.7, 6, 0), Vector(0, 0, 1), 2.4),
    Part.Circle(Vector(473.2, 6, 0), Vector(0, 0, 1), 2.4),
    Part.Circle(Vector(435.8, 6, 0), Vector(0, 0, 1), 2.4),
    Part.Circle(Vector(335, 6, 0), Vector(0, 0, 1), 2.4),
    Part.Circle(Vector(294.9, 6, 0), Vector(0, 0, 1), 2.4),
    Part.Circle(Vector(194.1, 6, 0), Vector(0, 0, 1), 2.4),
    Part.Circle(Vector(156.7, 6, 0), Vector(0, 0, 1), 2.4),
    Part.Circle(Vector(119.3, 6, 0), Vector(0, 0, 1), 2.4),
    Part.Circle(Vector(18.5, 6, 0), Vector(0, 0, 1), 2.4),
], False)
sketch12.addConstraint([
    Sketcher.Constraint("Equal", 0, 1),
    Sketcher.Constraint("Equal", 1, 2),
    Sketcher.Constraint("Equal", 2, 3),
    Sketcher.Constraint("Equal", 3, 4),
    Sketcher.Constraint("Equal", 4, 5),
    Sketcher.Constraint("Equal", 5, 6),
    Sketcher.Constraint("Equal", 6, 7),
    Sketcher.Constraint("Equal", 7, 8),
    Sketcher.Constraint("Equal", 8, 9),
    Sketcher.Constraint("Horizontal", 0, 3, 1, 3),
    Sketcher.Constraint("Horizontal", 1, 3, 2, 3),
    Sketcher.Constraint("Horizontal", 2, 3, 3, 3),
    Sketcher.Constraint("Horizontal", 3, 3, 4, 3),
    Sketcher.Constraint("Horizontal", 4, 3, 5, 3),
    Sketcher.Constraint("Horizontal", 5, 3, 6, 3),
    Sketcher.Constraint("Horizontal", 6, 3, 7, 3),
    Sketcher.Constraint("Horizontal", 7, 3, 8, 3),
    Sketcher.Constraint("Horizontal", 8, 3, 9, 3),
    Sketcher.Constraint("Diameter", 0, 4.8),
    Sketcher.Constraint("DistanceX", 6, 3, 1, 3, Q("12.4623 in")),
    Sketcher.Constraint("DistanceX", 7, 3, 2, 3, Q("12.4623 in")),
    Sketcher.Constraint("DistanceX", 8, 3, 3, 3, Q("12.4623 in")),
    Sketcher.Constraint("DistanceY", -1, 1, 0, 3, 5.99684),
    Sketcher.Constraint("DistanceX", -1, 1, 2, 3, 473.22613),
    Sketcher.Constraint("DistanceX", 1, 3, 0, 3, 100.751411),
    Sketcher.Constraint("DistanceX", 3, 3, 1, 3, 74.849532),
    Sketcher.Constraint("DistanceX", 4, 3, 3, 3, 100.751561),
    Sketcher.Constraint("DistanceX", 5, 3, 1, 3, 215.790859),
    Sketcher.Constraint("DistanceX", 9, 3, 8, 3, 100.751411),
    Sketcher.Constraint("DistanceX", -1, 1, 0, 3, 611.402307),
])
doc.recompute()
hole = doc.addObject("PartDesign::Hole", "Hole")
body.addObject(hole)
hole.Profile = sketch12
hole.ThreadType = "None"
hole.Diameter = 4.8
hole.DepthType = "ThroughAll"
hole.Reversed = True

doc.recompute()
